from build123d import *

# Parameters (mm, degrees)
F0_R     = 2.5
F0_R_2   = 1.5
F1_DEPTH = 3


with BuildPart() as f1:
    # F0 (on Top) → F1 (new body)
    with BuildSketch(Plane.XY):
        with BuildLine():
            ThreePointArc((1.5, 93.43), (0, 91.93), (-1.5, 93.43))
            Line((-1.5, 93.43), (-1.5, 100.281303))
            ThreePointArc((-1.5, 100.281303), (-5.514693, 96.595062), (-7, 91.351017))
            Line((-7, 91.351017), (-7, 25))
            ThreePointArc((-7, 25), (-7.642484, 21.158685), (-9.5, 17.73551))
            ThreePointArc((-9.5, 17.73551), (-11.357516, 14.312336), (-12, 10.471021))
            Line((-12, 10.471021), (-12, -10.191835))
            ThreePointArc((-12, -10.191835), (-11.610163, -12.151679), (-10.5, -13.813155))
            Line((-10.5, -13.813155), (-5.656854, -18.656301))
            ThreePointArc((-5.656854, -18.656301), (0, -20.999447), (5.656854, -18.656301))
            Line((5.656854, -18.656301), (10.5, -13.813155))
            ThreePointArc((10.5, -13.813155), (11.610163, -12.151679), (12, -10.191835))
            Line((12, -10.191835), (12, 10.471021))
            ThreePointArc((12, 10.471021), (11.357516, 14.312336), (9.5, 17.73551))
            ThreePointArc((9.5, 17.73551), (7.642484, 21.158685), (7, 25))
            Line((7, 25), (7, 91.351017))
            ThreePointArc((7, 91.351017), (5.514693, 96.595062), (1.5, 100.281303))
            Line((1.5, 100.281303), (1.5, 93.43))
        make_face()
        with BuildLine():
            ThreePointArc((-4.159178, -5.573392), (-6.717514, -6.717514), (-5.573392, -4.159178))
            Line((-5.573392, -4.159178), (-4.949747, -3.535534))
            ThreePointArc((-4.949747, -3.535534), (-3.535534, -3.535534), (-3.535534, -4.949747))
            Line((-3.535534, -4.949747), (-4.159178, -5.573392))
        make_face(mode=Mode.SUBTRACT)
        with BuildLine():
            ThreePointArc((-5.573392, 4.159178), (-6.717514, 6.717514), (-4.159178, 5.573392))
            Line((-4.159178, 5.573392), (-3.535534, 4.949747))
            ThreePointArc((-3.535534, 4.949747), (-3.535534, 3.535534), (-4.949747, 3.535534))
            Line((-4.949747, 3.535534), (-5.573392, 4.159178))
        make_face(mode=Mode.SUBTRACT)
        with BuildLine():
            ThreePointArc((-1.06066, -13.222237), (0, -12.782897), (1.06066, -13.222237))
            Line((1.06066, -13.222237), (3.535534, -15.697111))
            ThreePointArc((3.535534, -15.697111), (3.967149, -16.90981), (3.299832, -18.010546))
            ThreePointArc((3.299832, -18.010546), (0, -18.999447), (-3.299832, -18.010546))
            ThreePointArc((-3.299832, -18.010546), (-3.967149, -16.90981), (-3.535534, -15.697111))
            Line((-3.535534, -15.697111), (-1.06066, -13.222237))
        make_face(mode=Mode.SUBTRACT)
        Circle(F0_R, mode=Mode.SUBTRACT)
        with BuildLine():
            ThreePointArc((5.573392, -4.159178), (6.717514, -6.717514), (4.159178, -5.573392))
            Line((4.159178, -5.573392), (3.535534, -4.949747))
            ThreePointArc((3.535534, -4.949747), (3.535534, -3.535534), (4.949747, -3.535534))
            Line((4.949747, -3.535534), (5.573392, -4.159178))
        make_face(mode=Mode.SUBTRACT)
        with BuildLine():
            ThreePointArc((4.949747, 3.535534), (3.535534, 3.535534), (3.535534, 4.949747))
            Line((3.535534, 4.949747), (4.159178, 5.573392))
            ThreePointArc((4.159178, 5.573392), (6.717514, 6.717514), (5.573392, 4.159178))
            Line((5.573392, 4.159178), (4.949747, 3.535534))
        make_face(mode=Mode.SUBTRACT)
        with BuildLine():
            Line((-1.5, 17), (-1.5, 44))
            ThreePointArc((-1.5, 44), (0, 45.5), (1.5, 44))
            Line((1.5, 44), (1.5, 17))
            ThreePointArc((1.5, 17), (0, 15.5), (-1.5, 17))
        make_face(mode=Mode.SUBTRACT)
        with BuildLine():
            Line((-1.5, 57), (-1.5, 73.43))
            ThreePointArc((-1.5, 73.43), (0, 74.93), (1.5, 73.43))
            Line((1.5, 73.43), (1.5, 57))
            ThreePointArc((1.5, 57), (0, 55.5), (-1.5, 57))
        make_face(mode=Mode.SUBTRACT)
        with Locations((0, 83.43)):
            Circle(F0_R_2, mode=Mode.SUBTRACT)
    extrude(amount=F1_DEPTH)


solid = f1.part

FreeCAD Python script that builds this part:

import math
import FreeCAD as App
import Part
import Sketcher
Q = App.Units.Quantity

doc = App.newDocument("Part")
params = doc.addObject("Spreadsheet::Sheet", "Params")
for row, (alias, value) in enumerate([
    ("sketch1_diameter", "5 mm"),
    ("sketch1_diameter2", "3 mm"),
    ("sketch1_radius", "10 mm"),
    ("sketch1_radius2", "7.999999 mm"),
    ("sketch1_radius3", "1 mm"),
    ("pad1_length", "3 mm"),
], start=1):
    params.set(f"A{row}", alias)
    params.set(f"B{row}", "=" + value)
    params.setAlias(f"B{row}", alias)

body = doc.addObject("PartDesign::Body", "Body")

# Sketch on XY plane
sketch1 = body.newObject("Sketcher::SketchObject", "Sketch")
sketch1.AttachmentSupport = (doc.getObject("XY_Plane"), [""])
sketch1.MapMode = "FlatFace"
sketch1.addGeometry([
    Part.ArcOfCircle(Part.Circle(App.Vector(0, 93.4, 0), App.Vector(0, 0, 1), 1.5), math.radians(180), math.radians(360)),  # 0
    Part.LineSegment(App.Vector(-1.5, 93.4, 0), App.Vector(-1.5, 100.3, 0)),  # 1
    Part.ArcOfCircle(Part.Circle(App.Vector(3, 91.4, 0), App.Vector(0, 0, 1), 10), math.radians(117), math.radians(180)),  # 2
    Part.LineSegment(App.Vector(-7, 91.4, 0), App.Vector(-7, 25, 0)),  # 3
    Part.ArcOfCircle(Part.Circle(App.Vector(-18.8, 25, 0), App.Vector(0, 0, 1), 11.8), math.radians(-38), math.radians(0)),  # 4
    Part.ArcOfCircle(Part.Circle(App.Vector(-0.2, 10.5, 0), App.Vector(0, 0, 1), 11.8), math.radians(142), math.radians(180)),  # 5
    Part.LineSegment(App.Vector(-12, 10.5, 0), App.Vector(-12, -10.2, 0)),  # 6
    Part.ArcOfCircle(Part.Circle(App.Vector(-6.9, -10.2, 0), App.Vector(0, 0, 1), 5.1), math.radians(180), math.radians(225)),  # 7
    Part.LineSegment(App.Vector(-10.5, -13.8, 0), App.Vector(-5.7, -18.7, 0)),  # 8
    Part.ArcOfCircle(Part.Circle(App.Vector(0, -13, 0), App.Vector(0, 0, 1), 8), math.radians(-135), math.radians(-45)),  # 9
    Part.LineSegment(App.Vector(5.7, -18.7, 0), App.Vector(10.5, -13.8, 0)),  # 10
    Part.ArcOfCircle(Part.Circle(App.Vector(6.9, -10.2, 0), App.Vector(0, 0, 1), 5.1), math.radians(-45), math.radians(0)),  # 11
    Part.LineSegment(App.Vector(12, -10.2, 0), App.Vector(12, 10.5, 0)),  # 12
    Part.ArcOfCircle(Part.Circle(App.Vector(0.2, 10.5, 0), App.Vector(0, 0, 1), 11.8), math.radians(0), math.radians(38)),  # 13
    Part.ArcOfCircle(Part.Circle(App.Vector(18.8, 25, 0), App.Vector(0, 0, 1), 11.8), math.radians(180), math.radians(218)),  # 14
    Part.LineSegment(App.Vector(7, 25, 0), App.Vector(7, 91.4, 0)),  # 15
    Part.ArcOfCircle(Part.Circle(App.Vector(-3, 91.4, 0), App.Vector(0, 0, 1), 10), math.radians(0), math.radians(63)),  # 16
    Part.LineSegment(App.Vector(1.5, 100.3, 0), App.Vector(1.5, 93.4, 0)),  # 17
    Part.LineSegment(App.Vector(-3.5, -4.9, 0), App.Vector(-4.2, -5.6, 0)),  # 18
    Part.ArcOfCircle(Part.Circle(App.Vector(-5.7, -5.7, 0), App.Vector(0, 0, 1), 1.5), math.radians(87), math.radians(363)),  # 19
    Part.LineSegment(App.Vector(-5.6, -4.2, 0), App.Vector(-4.9, -3.5, 0)),  # 20
    Part.ArcOfCircle(Part.Circle(App.Vector(-4.2, -4.2, 0), App.Vector(0, 0, 1), 1), math.radians(-45), math.radians(135)),  # 21
    Part.LineSegment(App.Vector(-4.9, 3.5, 0), App.Vector(-5.6, 4.2, 0)),  # 22
    Part.ArcOfCircle(Part.Circle(App.Vector(-5.7, 5.7, 0), App.Vector(0, 0, 1), 1.5), math.radians(-3), math.radians(273)),  # 23
    Part.LineSegment(App.Vector(-4.2, 5.6, 0), App.Vector(-3.5, 4.9, 0)),  # 24
    Part.ArcOfCircle(Part.Circle(App.Vector(-4.2, 4.2, 0), App.Vector(0, 0, 1), 1), math.radians(-135), math.radians(45)),  # 25
    Part.LineSegment(App.Vector(-3.5, -15.7, 0), App.Vector(-1.1, -13.2, 0)),  # 26
    Part.ArcOfCircle(Part.Circle(App.Vector(0, -14.3, 0), App.Vector(0, 0, 1), 1.5), math.radians(45), math.radians(135)),  # 27
    Part.LineSegment(App.Vector(1.1, -13.2, 0), App.Vector(3.5, -15.7, 0)),  # 28
    Part.ArcOfCircle(Part.Circle(App.Vector(2.5, -16.8, 0), App.Vector(0, 0, 1), 1.5), math.radians(-57), math.radians(45)),  # 29
    Part.ArcOfCircle(Part.Circle(App.Vector(0, -13, 0), App.Vector(0, 0, 1), 6), math.radians(-123), math.radians(-57)),  # 30
    Part.ArcOfCircle(Part.Circle(App.Vector(-2.5, -16.8, 0), App.Vector(0, 0, 1), 1.5), math.radians(135), math.radians(237)),  # 31
    Part.Circle(App.Vector(0, 0, 0), App.Vector(0, 0, 1), 2.5),  # 32
    Part.LineSegment(App.Vector(4.9, -3.5, 0), App.Vector(5.6, -4.2, 0)),  # 33
    Part.ArcOfCircle(Part.Circle(App.Vector(5.7, -5.7, 0), App.Vector(0, 0, 1), 1.5), math.radians(177), math.radians(453)),  # 34
    Part.LineSegment(App.Vector(4.2, -5.6, 0), App.Vector(3.5, -4.9, 0)),  # 35
    Part.ArcOfCircle(Part.Circle(App.Vector(4.2, -4.2, 0), App.Vector(0, 0, 1), 1), math.radians(45), math.radians(225)),  # 36
    Part.LineSegment(App.Vector(5.6, 4.2, 0), App.Vector(4.9, 3.5, 0)),  # 37
    Part.ArcOfCircle(Part.Circle(App.Vector(4.2, 4.2, 0), App.Vector(0, 0, 1), 1), math.radians(135), math.radians(315)),  # 38
    Part.LineSegment(App.Vector(3.5, 4.9, 0), App.Vector(4.2, 5.6, 0)),  # 39
    Part.ArcOfCircle(Part.Circle(App.Vector(5.7, 5.7, 0), App.Vector(0, 0, 1), 1.5), math.radians(-93), math.radians(183)),  # 40
    Part.ArcOfCircle(Part.Circle(App.Vector(0, 17, 0), App.Vector(0, 0, 1), 1.5), math.radians(180), math.radians(360)),  # 41
    Part.LineSegment(App.Vector(-1.5, 17, 0), App.Vector(-1.5, 44, 0)),  # 42
    Part.ArcOfCircle(Part.Circle(App.Vector(0, 44, 0), App.Vector(0, 0, 1), 1.5), math.radians(0), math.radians(180)),  # 43
    Part.LineSegment(App.Vector(1.5, 44, 0), App.Vector(1.5, 17, 0)),  # 44
    Part.ArcOfCircle(Part.Circle(App.Vector(0, 57, 0), App.Vector(0, 0, 1), 1.5), math.radians(180), math.radians(360)),  # 45
    Part.LineSegment(App.Vector(-1.5, 57, 0), App.Vector(-1.5, 73.4, 0)),  # 46
    Part.ArcOfCircle(Part.Circle(App.Vector(0, 73.4, 0), App.Vector(0, 0, 1), 1.5), math.radians(0), math.radians(180)),  # 47
    Part.LineSegment(App.Vector(1.5, 73.4, 0), App.Vector(1.5, 57, 0)),  # 48
    Part.Circle(App.Vector(0, 83.4, 0), App.Vector(0, 0, 1), 1.5),  # 49
], False)
sketch1.addConstraint([
    Sketcher.Constraint("Tangent", 0, 1, 1, 1),
    Sketcher.Constraint("Coincident", 1, 2, 2, 1),
    Sketcher.Constraint("Tangent", 2, 2, 3, 1),
    Sketcher.Constraint("Tangent", 3, 2, 4, 2),
    Sketcher.Constraint("Tangent", 4, 1, 5, 1),
    Sketcher.Constraint("Tangent", 5, 2, 6, 1),
    Sketcher.Constraint("Tangent", 6, 2, 7, 1),
    Sketcher.Constraint("Tangent", 7, 2, 8, 1),
    Sketcher.Constraint("Tangent", 8, 2, 9, 1),
    Sketcher.Constraint("Tangent", 9, 2, 10, 1),
    Sketcher.Constraint("Tangent", 10, 2, 11, 1),
    Sketcher.Constraint("Tangent", 11, 2, 12, 1),
    Sketcher.Constraint("Tangent", 12, 2, 13, 1),
    Sketcher.Constraint("Tangent", 13, 2, 14, 2),
    Sketcher.Constraint("Tangent", 14, 1, 15, 1),
    Sketcher.Constraint("Tangent", 15, 2, 16, 1),
    Sketcher.Constraint("Coincident", 16, 2, 17, 1),
    Sketcher.Constraint("Tangent", 17, 2, 0, 2),
    Sketcher.Constraint("Coincident", 18, 2, 19, 2),
    Sketcher.Constraint("Coincident", 19, 1, 20, 1),
    Sketcher.Constraint("Tangent", 20, 2, 21, 2),
    Sketcher.Constraint("Tangent", 21, 1, 18, 1),
    Sketcher.Constraint("Coincident", 22, 2, 23, 2),
    Sketcher.Constraint("Coincident", 23, 1, 24, 1),
    Sketcher.Constraint("Tangent", 24, 2, 25, 2),
    Sketcher.Constraint("Tangent", 25, 1, 22, 1),
    Sketcher.Constraint("Tangent", 26, 2, 27, 2),
    Sketcher.Constraint("Tangent", 27, 1, 28, 1),
    Sketcher.Constraint("Tangent", 28, 2, 29, 2),
    Sketcher.Constraint("Tangent", 29, 1, 30, 2),
    Sketcher.Constraint("Tangent", 30, 1, 31, 2),
    Sketcher.Constraint("Tangent", 31, 1, 26, 1),
    Sketcher.Constraint("Coincident", 33, 2, 34, 2),
    Sketcher.Constraint("Coincident", 34, 1, 35, 1),
    Sketcher.Constraint("Tangent", 35, 2, 36, 2),
    Sketcher.Constraint("Tangent", 36, 1, 33, 1),
    Sketcher.Constraint("Tangent", 37, 2, 38, 2),
    Sketcher.Constraint("Tangent", 38, 1, 39, 1),
    Sketcher.Constraint("Coincident", 39, 2, 40, 2),
    Sketcher.Constraint("Coincident", 40, 1, 37, 1),
    Sketcher.Constraint("Tangent", 41, 1, 42, 1),
    Sketcher.Constraint("Tangent", 42, 2, 43, 2),
    Sketcher.Constraint("Tangent", 43, 1, 44, 1),
    Sketcher.Constraint("Tangent", 44, 2, 41, 2),
    Sketcher.Constraint("Tangent", 45, 1, 46, 1),
    Sketcher.Constraint("Tangent", 46, 2, 47, 2),
    Sketcher.Constraint("Tangent", 47, 1, 48, 1),
    Sketcher.Constraint("Tangent", 48, 2, 45, 2),
    Sketcher.Constraint("Vertical", 1),
    Sketcher.Constraint("Vertical", 3),
    Sketcher.Constraint("Vertical", 6),
    Sketcher.Constraint("Vertical", 12),
    Sketcher.Constraint("Vertical", 15),
    Sketcher.Constraint("Vertical", 17),
    Sketcher.Constraint("Vertical", 42),
    Sketcher.Constraint("Vertical", 44),
    Sketcher.Constraint("Vertical", 46),
    Sketcher.Constraint("Vertical", 48),
    Sketcher.Constraint("Coincident", 32, 3, -1, 1),
    Sketcher.Constraint("Coincident", 30, 3, 9, 3),
    Sketcher.Constraint("Equal", 7, 11),
    Sketcher.Constraint("Equal", 5, 13),
    Sketcher.Constraint("Equal", 4, 14),
    Sketcher.Constraint("Equal", 2, 16),
    Sketcher.Constraint("Equal", 0, 19),
    Sketcher.Constraint("Equal", 19, 23),
    Sketcher.Constraint("Equal", 21, 25),
    Sketcher.Constraint("Equal", 23, 27),
    Sketcher.Constraint("Equal", 27, 29),
    Sketcher.Constraint("Equal", 29, 31),
    Sketcher.Constraint("Equal", 31, 34),
    Sketcher.Constraint("Equal", 25, 36),
    Sketcher.Constraint("Equal", 36, 38),
    Sketcher.Constraint("Equal", 34, 40),
    Sketcher.Constraint("Equal", 40, 41),
    Sketcher.Constraint("Equal", 43, 45),
    Sketcher.Constraint("Equal", 47, 49),
    Sketcher.Constraint("Symmetric", 23, 3, 34, 3, -1, 1),
    Sketcher.Constraint("Symmetric", 25, 3, 36, 3, -1, 1),
    Sketcher.Constraint("Symmetric", 21, 3, 38, 3, -1, 1),
    Sketcher.Constraint("Symmetric", 19, 3, 40, 3, -1, 1),
    Sketcher.Constraint("Symmetric", 7, 3, 11, 3, -2),
    Sketcher.Constraint("Symmetric", 4, 3, 14, 3, -2),
    Sketcher.Constraint("Symmetric", 29, 3, 31, 3, -2),
    Sketcher.Constraint("Symmetric", 19, 3, 34, 3, -2),
    Sketcher.Constraint("Symmetric", 21, 3, 36, 3, -2),
    Sketcher.Constraint("Symmetric", 1, 2, 16, 2, -2),
    Sketcher.Constraint("PointOnObject", 27, 3, -2),
    Sketcher.Constraint("PointOnObject", 41, 3, -2),
    Sketcher.Constraint("PointOnObject", 45, 3, -2),
    Sketcher.Constraint("PointOnObject", 49, 3, -2),
    Sketcher.Constraint("Perpendicular", 8, 10),
    Sketcher.Constraint("Parallel", 10, 18),
    Sketcher.Constraint("Parallel", 18, 20),
    Sketcher.Constraint("Perpendicular", 20, 22),
    Sketcher.Constraint("Parallel", 22, 24),
    Sketcher.Constraint("Perpendicular", 24, 26),
    Sketcher.Constraint("Parallel", 28, 33),
    Sketcher.Constraint("Parallel", 33, 35),
    Sketcher.Constraint("Perpendicular", 35, 37),
    Sketcher.Constraint("Parallel", 37, 39),
    Sketcher.Constraint("Vertical", 23, 3, 8, 2),
    Sketcher.Constraint("Vertical", 24, 2, 31, 1),
    Sketcher.Constraint("Equal", 18, 20),
    Sketcher.Constraint("Diameter", 32, Q("5 mm")),
    Sketcher.Constraint("Diameter", 49, Q("3 mm")),
    Sketcher.Constraint("Radius", 2, Q("10 mm")),
    Sketcher.Constraint("Radius", 9, Q("7.999999 mm")),
    Sketcher.Constraint("Radius", 21, Q("1 mm")),
    Sketcher.Constraint("DistanceY", 42, 1, 42, 2, Q("27 mm")),
    Sketcher.Constraint("DistanceX", -1, 1, 2, 3, Q("3 mm")),
    Sketcher.Constraint("DistanceY", -1, 1, 4, 3, Q("25 mm")),
    Sketcher.Constraint("DistanceY", -1, 1, 41, 3, Q("17 mm")),
    Sketcher.Constraint("DistanceY", -1, 1, 45, 3, Q("57 mm")),
    Sketcher.Constraint("DistanceX", 5, 2, -1, 1, Q("12 mm")),
    Sketcher.Constraint("Distance", 26, Q("3.5 mm")),
    Sketcher.Constraint("DistanceY", 46, 1, 46, 2, Q("16.43 mm")),
    Sketcher.Constraint("DistanceX", 4, 1, -1, 1, Q("9.5 mm")),
    Sketcher.Constraint("DistanceX", 7, 2, -1, 1, Q("10.5 mm")),
    Sketcher.Constraint("DistanceY", -1, 1, 0, 3, Q("93.43 mm")),
    Sketcher.Constraint("DistanceY", -1, 1, 49, 3, Q("83.43 mm")),
    Sketcher.Constraint("Radius", 4, Q("11.804562 mm")),
    Sketcher.Constraint("Radius", 30, Q("6.000002 mm")),
    Sketcher.Constraint("DistanceY", 8, 2, -1, 1, Q("18.656301 mm")),
    Sketcher.Constraint("DistanceY", 1, 1, 1, 2, Q("6.851303 mm")),
    Sketcher.Constraint("DistanceY", 21, 3, -1, 1, Q("4.242641 mm")),
])
sketch1.setExpression("Constraints[104]", "Params.sketch1_diameter")
sketch1.setExpression("Constraints[105]", "Params.sketch1_diameter2")
sketch1.setExpression("Constraints[106]", "Params.sketch1_radius")
sketch1.setExpression("Constraints[107]", "Params.sketch1_radius2")
sketch1.setExpression("Constraints[108]", "Params.sketch1_radius3")
pad1 = body.newObject("PartDesign::Pad", "Pad")
pad1.Profile = sketch1
pad1.setExpression("Length", "Params.pad1_length")

doc.recompute()
